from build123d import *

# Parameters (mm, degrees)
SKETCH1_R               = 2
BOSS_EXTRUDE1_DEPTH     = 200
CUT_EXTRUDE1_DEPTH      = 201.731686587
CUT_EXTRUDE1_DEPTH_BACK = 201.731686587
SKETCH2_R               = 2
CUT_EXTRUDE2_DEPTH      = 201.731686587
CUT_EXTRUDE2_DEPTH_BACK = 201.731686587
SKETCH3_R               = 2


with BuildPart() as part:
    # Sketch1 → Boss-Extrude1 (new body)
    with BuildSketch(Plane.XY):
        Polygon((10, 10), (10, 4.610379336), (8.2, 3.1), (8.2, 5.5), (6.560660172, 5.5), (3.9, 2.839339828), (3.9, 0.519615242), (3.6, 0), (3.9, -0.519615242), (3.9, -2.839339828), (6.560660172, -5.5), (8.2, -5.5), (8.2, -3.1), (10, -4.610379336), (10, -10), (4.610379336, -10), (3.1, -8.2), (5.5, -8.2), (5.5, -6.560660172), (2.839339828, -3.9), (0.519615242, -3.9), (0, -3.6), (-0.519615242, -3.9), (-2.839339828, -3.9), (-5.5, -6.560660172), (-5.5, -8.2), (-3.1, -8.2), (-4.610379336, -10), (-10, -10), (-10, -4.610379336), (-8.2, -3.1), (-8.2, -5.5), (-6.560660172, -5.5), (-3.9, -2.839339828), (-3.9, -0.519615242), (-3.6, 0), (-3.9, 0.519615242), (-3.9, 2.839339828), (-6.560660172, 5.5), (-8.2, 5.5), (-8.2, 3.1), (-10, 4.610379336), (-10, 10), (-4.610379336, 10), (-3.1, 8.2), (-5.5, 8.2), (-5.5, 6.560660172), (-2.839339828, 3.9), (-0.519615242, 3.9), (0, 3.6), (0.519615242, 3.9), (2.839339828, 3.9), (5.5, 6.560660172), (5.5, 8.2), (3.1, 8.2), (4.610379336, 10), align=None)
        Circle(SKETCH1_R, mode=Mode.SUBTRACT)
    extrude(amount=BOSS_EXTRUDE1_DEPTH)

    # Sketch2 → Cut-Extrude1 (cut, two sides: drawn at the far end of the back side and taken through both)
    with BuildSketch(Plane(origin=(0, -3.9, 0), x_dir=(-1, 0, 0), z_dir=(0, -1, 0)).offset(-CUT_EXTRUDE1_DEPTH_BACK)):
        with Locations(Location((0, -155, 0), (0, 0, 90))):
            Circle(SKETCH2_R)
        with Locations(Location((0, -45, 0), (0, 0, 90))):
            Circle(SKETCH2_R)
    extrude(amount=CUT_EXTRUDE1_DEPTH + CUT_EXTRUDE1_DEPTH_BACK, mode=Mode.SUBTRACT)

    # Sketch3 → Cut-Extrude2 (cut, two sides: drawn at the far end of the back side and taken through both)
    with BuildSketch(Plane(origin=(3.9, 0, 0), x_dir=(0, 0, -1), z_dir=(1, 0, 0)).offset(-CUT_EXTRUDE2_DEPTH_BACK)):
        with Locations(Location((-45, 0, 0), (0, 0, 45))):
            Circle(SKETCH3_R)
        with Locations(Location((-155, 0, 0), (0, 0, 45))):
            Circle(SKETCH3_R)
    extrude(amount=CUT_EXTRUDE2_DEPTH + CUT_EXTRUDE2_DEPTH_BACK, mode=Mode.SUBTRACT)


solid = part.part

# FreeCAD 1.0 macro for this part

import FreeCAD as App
import Part
import Sketcher
Q = App.Units.Quantity


def add_polygon(sketch, points):
    """Adds a closed chain of lines whose ends are joined by coincident constraints."""
    first, n = sketch.GeometryCount, len(points)
    for a, b in zip(points, points[1:] + points[:1]):
        sketch.addGeometry(Part.LineSegment(App.Vector(*a, 0), App.Vector(*b, 0)), False)
    for i in range(n):
        sketch.addConstraint(Sketcher.Constraint("Coincident", first + i, 2, first + (i + 1) % n, 1))

doc = App.newDocument("Part")
body = doc.addObject("PartDesign::Body", "Body")

# Sketch on XY plane
sketch1 = body.newObject("Sketcher::SketchObject", "Sketch")
sketch1.AttachmentSupport = (doc.getObject("XY_Plane"), [""])
sketch1.MapMode = "FlatFace"
add_polygon(sketch1, [(10, 4.6), (10, 10), (4.6, 10), (3.1, 8.2), (5.5, 8.2), (5.5, 6.6), (2.8, 3.9), (0.5, 3.9), (0, 3.6), (-0.5, 3.9), (-2.8, 3.9), (-5.5, 6.6), (-5.5, 8.2), (-3.1, 8.2), (-4.6, 10), (-10, 10), (-10, 4.6), (-8.2, 3.1), (-8.2, 5.5), (-6.6, 5.5), (-3.9, 2.8), (-3.9, 0.5), (-3.6, 0), (-3.9, -0.5), (-3.9, -2.8), (-6.6, -5.5), (-8.2, -5.5), (-8.2, -3.1), (-10, -4.6), (-10, -10), (-4.6, -10), (-3.1, -8.2), (-5.5, -8.2), (-5.5, -6.6), (-2.8, -3.9), (-0.5, -3.9), (0, -3.6), (0.5, -3.9), (2.8, -3.9), (5.5, -6.6), (5.5, -8.2), (3.1, -8.2), (4.6, -10), (10, -10), (10, -4.6), (8.2, -3.1), (8.2, -5.5), (6.6, -5.5), (3.9, -2.8), (3.9, -0.5), (3.6, 0), (3.9, 0.5), (3.9, 2.8), (6.6, 5.5), (8.2, 5.5), (8.2, 3.1)])  # lines 0-55
sketch1.addGeometry(Part.Circle(App.Vector(0, 0, 0), App.Vector(0, 0, 1), 2), False)  # 56
sketch1.addConstraint([
    Sketcher.Constraint("Vertical", 0),
    Sketcher.Constraint("Horizontal", 1),
    Sketcher.Constraint("Horizontal", 3),
    Sketcher.Constraint("Vertical", 4),
    Sketcher.Constraint("Horizontal", 6),
    Sketcher.Constraint("Horizontal", 9),
    Sketcher.Constraint("Vertical", 11),
    Sketcher.Constraint("Horizontal", 12),
    Sketcher.Constraint("Horizontal", 14),
    Sketcher.Constraint("Vertical", 15),
    Sketcher.Constraint("Vertical", 17),
    Sketcher.Constraint("Horizontal", 18),
    Sketcher.Constraint("Vertical", 20),
    Sketcher.Constraint("Vertical", 23),
    Sketcher.Constraint("Horizontal", 25),
    Sketcher.Constraint("Vertical", 26),
    Sketcher.Constraint("Vertical", 28),
    Sketcher.Constraint("Horizontal", 29),
    Sketcher.Constraint("Horizontal", 31),
    Sketcher.Constraint("Vertical", 32),
    Sketcher.Constraint("Horizontal", 34),
    Sketcher.Constraint("Horizontal", 37),
    Sketcher.Constraint("Vertical", 39),
    Sketcher.Constraint("Horizontal", 40),
    Sketcher.Constraint("Horizontal", 42),
    Sketcher.Constraint("Vertical", 43),
    Sketcher.Constraint("Vertical", 45),
    Sketcher.Constraint("Horizontal", 46),
    Sketcher.Constraint("Vertical", 48),
    Sketcher.Constraint("Vertical", 51),
    Sketcher.Constraint("Horizontal", 53),
    Sketcher.Constraint("Vertical", 54),
    Sketcher.Constraint("Coincident", 56, 3, -1, 1),
    Sketcher.Constraint("Symmetric", 0, 2, 28, 2, -1, 1),
    Sketcher.Constraint("Symmetric", 2, 2, 30, 2, -1, 1),
    Sketcher.Constraint("Symmetric", 4, 2, 32, 2, -1, 1),
    Sketcher.Constraint("Symmetric", 5, 2, 33, 2, -1, 1),
    Sketcher.Constraint("Symmetric", 7, 2, 35, 2, -1, 1),
    Sketcher.Constraint("Symmetric", 8, 2, 36, 2, -1, 1),
    Sketcher.Constraint("Symmetric", 10, 2, 38, 2, -1, 1),
    Sketcher.Constraint("Symmetric", 12, 2, 40, 2, -1, 1),
    Sketcher.Constraint("Symmetric", 13, 2, 41, 2, -1, 1),
    Sketcher.Constraint("Symmetric", 15, 2, 43, 2, -1, 1),
    Sketcher.Constraint("Symmetric", 16, 2, 44, 2, -1, 1),
    Sketcher.Constraint("Symmetric", 18, 2, 46, 2, -1, 1),
    Sketcher.Constraint("Symmetric", 19, 2, 47, 2, -1, 1),
    Sketcher.Constraint("Symmetric", 21, 2, 49, 2, -1, 1),
    Sketcher.Constraint("Symmetric", 22, 2, 50, 2, -1, 1),
    Sketcher.Constraint("Symmetric", 24, 2, 52, 2, -1, 1),
    Sketcher.Constraint("Symmetric", 26, 2, 54, 2, -1, 1),
    Sketcher.Constraint("Symmetric", 6, 2, 8, 2, -2),
    Sketcher.Constraint("Symmetric", 4, 2, 10, 2, -2),
    Sketcher.Constraint("Symmetric", 2, 2, 12, 2, -2),
    Sketcher.Constraint("Symmetric", 1, 2, 13, 2, -2),
    Sketcher.Constraint("Symmetric", 27, 2, 43, 2, -2),
    Sketcher.Constraint("Symmetric", 26, 2, 44, 2, -2),
    Sketcher.Constraint("Symmetric", 24, 2, 46, 2, -2),
    Sketcher.Constraint("Symmetric", 23, 2, 47, 2, -2),
    Sketcher.Constraint("PointOnObject", 7, 2, -2),
    Sketcher.Constraint("PointOnObject", 21, 2, -1),
    Sketcher.Constraint("Perpendicular", 5, 10),
    Sketcher.Constraint("Perpendicular", 2, 16),
    Sketcher.Constraint("Parallel", 10, 19),
    Sketcher.Constraint("Perpendicular", 7, 21),
    Sketcher.Constraint("Perpendicular", 8, 22),
    Sketcher.Constraint("Perpendicular", 19, 24),
    Sketcher.Constraint("Perpendicular", 16, 30),
    Sketcher.Constraint("Perpendicular", 21, 35),
    Sketcher.Constraint("Perpendicular", 33, 38),
    Sketcher.Constraint("Perpendicular", 35, 49),
    Sketcher.Constraint("Perpendicular", 47, 52),
    Sketcher.Constraint("Perpendicular", 41, 55),
    Sketcher.Constraint("Equal", 42, 0),
    Sketcher.Constraint("Equal", 53, 4),
    Sketcher.Constraint("Equal", 40, 17),
    Sketcher.Constraint("Equal", 37, 20),
    Sketcher.Constraint("Equal", 13, 16),
    Sketcher.Constraint("Equal", 10, 19),
    Sketcher.Constraint("Equal", 8, 21),
    Sketcher.Constraint("Diameter", 56, Q("4 mm")),
    Sketcher.Constraint("Angle", 2, Q("-130 deg")),
    Sketcher.Constraint("Angle", 7, Q("-150 deg")),
    Sketcher.Constraint("DistanceX", 3, 1, 3, 2, Q("2.4 mm")),
    Sketcher.Constraint("DistanceX", -1, 1, 0, 2, Q("10 mm")),
    Sketcher.Constraint("Distance", 7, Q("0.6 mm")),
    Sketcher.Constraint("DistanceX", -1, 1, 2, 2, Q("3.1 mm")),
    Sketcher.Constraint("DistanceY", -1, 1, 2, 2, Q("8.2 mm")),
    Sketcher.Constraint("DistanceY", -1, 1, 5, 2, Q("3.9 mm")),
    Sketcher.Constraint("DistanceX", 18, 1, 18, 2, Q("1.63934 mm")),
])
pad1 = body.newObject("PartDesign::Pad", "Pad")
pad1.Profile = sketch1
pad1.Length = 200

# Sketch on XZ plane
sketch2 = body.newObject("Sketcher::SketchObject", "Sketch001")
sketch2.AttachmentSupport = (doc.getObject("XZ_Plane"), [""])
sketch2.MapMode = "FlatFace"
sketch2.AttachmentOffset = App.Placement(App.Vector(0, 0, 3.9), App.Rotation())
sketch2.addGeometry([
    Part.Circle(App.Vector(0, 155, 0), App.Vector(0, 0, 1), 2),
    Part.Circle(App.Vector(0, 45, 0), App.Vector(0, 0, 1), 2),
], False)
sketch2.addConstraint([
    Sketcher.Constraint("Equal", 0, 1),
    Sketcher.Constraint("PointOnObject", 0, 3, -2),
    Sketcher.Constraint("PointOnObject", 1, 3, -2),
    Sketcher.Constraint("Diameter", 0, Q("4 mm")),
    Sketcher.Constraint("DistanceY", -1, 1, 0, 3, Q("155 mm")),
    Sketcher.Constraint("DistanceY", -1, 1, 1, 3, Q("45 mm")),
])
pocket1 = body.newObject("PartDesign::Pocket", "Pocket")
pocket1.Profile = sketch2
pocket1.Type = "ThroughAll"
pocket1.Midplane = True

# Sketch on YZ plane
sketch3 = body.newObject("Sketcher::SketchObject", "Sketch002")
sketch3.AttachmentSupport = (doc.getObject("YZ_Plane"), [""])
sketch3.MapMode = "FlatFace"
sketch3.AttachmentOffset = App.Placement(App.Vector(0, 0, 3.9), App.Rotation())
sketch3.addGeometry([
    Part.Circle(App.Vector(0, 45, 0), App.Vector(0, 0, 1), 2),
    Part.Circle(App.Vector(0, 155, 0), App.Vector(0, 0, 1), 2),
], False)
sketch3.addConstraint([
    Sketcher.Constraint("Equal", 0, 1),
    Sketcher.Constraint("PointOnObject", 0, 3, -2),
    Sketcher.Constraint("PointOnObject", 1, 3, -2),
    Sketcher.Constraint("Diameter", 0, Q("4 mm")),
    Sketcher.Constraint("DistanceY", -1, 1, 0, 3, Q("45 mm")),
    Sketcher.Constraint("DistanceY", -1, 1, 1, 3, Q("155 mm")),
])
pocket2 = body.newObject("PartDesign::Pocket", "Pocket001")
pocket2.Profile = sketch3
pocket2.Type = "ThroughAll"
pocket2.Midplane = True

doc.recompute()
